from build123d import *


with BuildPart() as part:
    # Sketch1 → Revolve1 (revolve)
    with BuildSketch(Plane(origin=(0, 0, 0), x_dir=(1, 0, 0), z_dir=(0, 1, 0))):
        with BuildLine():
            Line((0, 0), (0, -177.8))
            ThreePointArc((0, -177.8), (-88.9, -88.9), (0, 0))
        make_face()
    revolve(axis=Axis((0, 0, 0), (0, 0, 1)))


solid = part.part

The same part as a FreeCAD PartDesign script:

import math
import FreeCAD as App
import Part
import Sketcher
Q = App.Units.Quantity

doc = App.newDocument("Part")
body = doc.addObject("PartDesign::Body", "Body")

# Sketch on XZ plane
sketch1 = body.newObject("Sketcher::SketchObject", "Sketch")
sketch1.AttachmentSupport = (doc.getObject("XZ_Plane"), [""])
sketch1.MapMode = "FlatFace"
sketch1.addGeometry([
    Part.LineSegment(App.Vector(0, 178, 0), App.Vector(0, 0, 0)),
    Part.ArcOfCircle(Part.Circle(App.Vector(0, 89, 0), App.Vector(0, 0, 1), 89), math.radians(90), math.radians(270)),
], False)
sketch1.addConstraint([
    Sketcher.Constraint("Coincident", 0, 1, 1, 1),
    Sketcher.Constraint("Coincident", 1, 2, 0, 2),
    Sketcher.Constraint("Vertical", 0),
    Sketcher.Constraint("Coincident", 1, 2, -1, 1),
    Sketcher.Constraint("PointOnObject", 1, 3, -2),
    Sketcher.Constraint("Radius", 1, Q("3.5 in")),
])
revolution = body.newObject("PartDesign::Revolution", "Revolution")
revolution.Profile = sketch1
revolution.ReferenceAxis = (sketch1, ["V_Axis"])
revolution.Angle = 360

doc.recompute()
